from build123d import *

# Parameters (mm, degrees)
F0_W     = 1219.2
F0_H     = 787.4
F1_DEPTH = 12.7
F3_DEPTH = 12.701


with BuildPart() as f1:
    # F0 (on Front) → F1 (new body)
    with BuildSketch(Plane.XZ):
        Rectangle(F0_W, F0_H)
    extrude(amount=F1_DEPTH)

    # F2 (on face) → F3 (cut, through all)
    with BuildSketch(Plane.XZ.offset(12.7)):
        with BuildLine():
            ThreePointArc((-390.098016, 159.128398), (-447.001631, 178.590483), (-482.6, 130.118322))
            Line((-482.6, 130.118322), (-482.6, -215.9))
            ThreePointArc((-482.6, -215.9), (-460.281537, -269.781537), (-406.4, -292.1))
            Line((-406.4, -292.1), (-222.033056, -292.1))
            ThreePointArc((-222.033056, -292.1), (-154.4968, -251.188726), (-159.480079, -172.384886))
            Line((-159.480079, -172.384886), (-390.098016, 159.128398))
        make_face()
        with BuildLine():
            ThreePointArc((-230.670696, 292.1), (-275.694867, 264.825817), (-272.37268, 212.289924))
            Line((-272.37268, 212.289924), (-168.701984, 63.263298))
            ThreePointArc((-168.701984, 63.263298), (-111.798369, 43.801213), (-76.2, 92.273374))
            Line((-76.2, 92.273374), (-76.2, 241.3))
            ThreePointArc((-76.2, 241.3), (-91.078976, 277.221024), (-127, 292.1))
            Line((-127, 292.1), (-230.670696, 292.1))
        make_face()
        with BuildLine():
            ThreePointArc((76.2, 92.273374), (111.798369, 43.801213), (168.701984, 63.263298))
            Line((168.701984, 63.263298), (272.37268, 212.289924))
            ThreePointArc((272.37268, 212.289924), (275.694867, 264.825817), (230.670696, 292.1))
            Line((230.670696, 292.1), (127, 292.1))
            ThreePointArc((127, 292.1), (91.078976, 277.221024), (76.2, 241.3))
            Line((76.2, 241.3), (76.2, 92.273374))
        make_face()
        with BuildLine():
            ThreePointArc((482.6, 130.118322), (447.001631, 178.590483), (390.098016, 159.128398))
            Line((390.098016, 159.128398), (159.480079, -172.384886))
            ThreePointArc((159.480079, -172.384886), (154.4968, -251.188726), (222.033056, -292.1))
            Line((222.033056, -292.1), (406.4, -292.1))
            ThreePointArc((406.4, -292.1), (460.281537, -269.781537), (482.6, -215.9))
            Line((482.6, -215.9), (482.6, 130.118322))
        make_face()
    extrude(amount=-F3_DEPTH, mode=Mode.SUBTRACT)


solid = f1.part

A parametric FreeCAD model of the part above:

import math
import FreeCAD as App
import Part
import Sketcher
Q = App.Units.Quantity

doc = App.newDocument("Part")
body = doc.addObject("PartDesign::Body", "Body")

sketch1 = body.newObject("Sketcher::SketchObject", "Sketch")
sketch1.AttachmentSupport = (doc.getObject("XZ_Plane"), [""])
sketch1.MapMode = "FlatFace"
sketch1.addGeometry(Part.LineSegment(App.Vector(-609.6, 393.7, 0), App.Vector(-609.6, -393.7, 0)), False)
sketch1.addGeometry(Part.LineSegment(App.Vector(-609.6, -393.7, 0), App.Vector(609.6, -393.7, 0)), False)
sketch1.addGeometry(Part.LineSegment(App.Vector(609.6, -393.7, 0), App.Vector(609.6, 393.7, 0)), False)
sketch1.addGeometry(Part.LineSegment(App.Vector(609.6, 393.7, 0), App.Vector(-609.6, 393.7, 0)), False)
sketch1.addConstraint(Sketcher.Constraint("Coincident", 0, 2, 1, 1))
sketch1.addConstraint(Sketcher.Constraint("Coincident", 1, 2, 2, 1))
sketch1.addConstraint(Sketcher.Constraint("Coincident", 2, 2, 3, 1))
sketch1.addConstraint(Sketcher.Constraint("Coincident", 3, 2, 0, 1))
sketch1.addConstraint(Sketcher.Constraint("Vertical", 0))
sketch1.addConstraint(Sketcher.Constraint("Horizontal", 1))
sketch1.addConstraint(Sketcher.Constraint("Vertical", 2))
sketch1.addConstraint(Sketcher.Constraint("Horizontal", 3))
sketch1.addConstraint(Sketcher.Constraint("Symmetric", 0, 2, 2, 2, -1, 1))
sketch1.addConstraint(Sketcher.Constraint("DistanceX", 1, 1, 1, 2, Q("48 in")))
sketch1.addConstraint(Sketcher.Constraint("DistanceY", 0, 2, 0, 1, Q("31 in")))
pad1 = body.newObject("PartDesign::Pad", "Pad")
pad1.Profile = sketch1
pad1.Length = Q("0.5 in")

sketch2 = body.newObject("Sketcher::SketchObject", "Sketch001")
sketch2.AttachmentSupport = (doc.getObject("XZ_Plane"), [""])
sketch2.MapMode = "FlatFace"
sketch2.AttachmentOffset = App.Placement(App.Vector(0, 0, 0.5 * 25.4), App.Rotation())
sketch2.addGeometry(Part.ArcOfCircle(Part.Circle(App.Vector(-431.8, 130.118322, 0), App.Vector(0, 0, 1), 50.8), math.radians(34.824489), math.radians(180)), False)
sketch2.addGeometry(Part.LineSegment(App.Vector(-482.6, 130.118322, 0), App.Vector(-482.6, -215.9, 0)), False)
sketch2.addGeometry(Part.ArcOfCircle(Part.Circle(App.Vector(-406.400001, -215.900001, 0), App.Vector(0, 0, 1), 76.199999), math.radians(179.999999), math.radians(270.000001)), False)
sketch2.addGeometry(Part.LineSegment(App.Vector(-406.4, -292.1, 0), App.Vector(-222.033056, -292.1, 0)), False)
sketch2.addGeometry(Part.ArcOfCircle(Part.Circle(App.Vector(-222.033056, -215.9, 0), App.Vector(0, 0, 1), 76.2), math.radians(-90), math.radians(34.824489)), False)
sketch2.addGeometry(Part.LineSegment(App.Vector(-159.480079, -172.384886, 0), App.Vector(-390.098016, 159.128398, 0)), False)
sketch2.addGeometry(Part.ArcOfCircle(Part.Circle(App.Vector(-230.670697, 241.300001, 0), App.Vector(0, 0, 1), 50.799999), math.radians(89.999999), math.radians(214.82449)), False)
sketch2.addGeometry(Part.LineSegment(App.Vector(-272.37268, 212.289924, 0), App.Vector(-168.701984, 63.263298, 0)), False)
sketch2.addGeometry(Part.ArcOfCircle(Part.Circle(App.Vector(-127, 92.273374, 0), App.Vector(0, 0, 1), 50.8), math.radians(-145.175511), math.radians(0)), False)
sketch2.addGeometry(Part.LineSegment(App.Vector(-76.2, 92.273374, 0), App.Vector(-76.2, 241.3, 0)), False)
sketch2.addGeometry(Part.ArcOfCircle(Part.Circle(App.Vector(-127.000002, 241.299998, 0), App.Vector(0, 0, 1), 50.800002), math.radians(0.000002), math.radians(89.999998)), False)
sketch2.addGeometry(Part.LineSegment(App.Vector(-127, 292.1, 0), App.Vector(-230.670696, 292.1, 0)), False)
sketch2.addGeometry(Part.ArcOfCircle(Part.Circle(App.Vector(127, 92.273374, 0), App.Vector(0, 0, 1), 50.8), math.radians(-180), math.radians(-34.824489)), False)
sketch2.addGeometry(Part.LineSegment(App.Vector(168.701984, 63.263298, 0), App.Vector(272.37268, 212.289924, 0)), False)
sketch2.addGeometry(Part.ArcOfCircle(Part.Circle(App.Vector(230.670697, 241.300001, 0), App.Vector(0, 0, 1), 50.799999), math.radians(-34.82449), math.radians(90.000001)), False)
sketch2.addGeometry(Part.LineSegment(App.Vector(230.670696, 292.1, 0), App.Vector(127, 292.1, 0)), False)
sketch2.addGeometry(Part.ArcOfCircle(Part.Circle(App.Vector(127.000002, 241.299998, 0), App.Vector(0, 0, 1), 50.800002), math.radians(90.000002), math.radians(179.999998)), False)
sketch2.addGeometry(Part.LineSegment(App.Vector(76.2, 241.3, 0), App.Vector(76.2, 92.273374, 0)), False)
sketch2.addGeometry(Part.ArcOfCircle(Part.Circle(App.Vector(431.8, 130.118322, 0), App.Vector(0, 0, 1), 50.8), math.radians(0), math.radians(145.175511)), False)
sketch2.addGeometry(Part.LineSegment(App.Vector(390.098016, 159.128398, 0), App.Vector(159.480079, -172.384886, 0)), False)
sketch2.addGeometry(Part.ArcOfCircle(Part.Circle(App.Vector(222.033056, -215.9, 0), App.Vector(0, 0, 1), 76.2), math.radians(145.175511), math.radians(270)), False)
sketch2.addGeometry(Part.LineSegment(App.Vector(222.033056, -292.1, 0), App.Vector(406.4, -292.1, 0)), False)
sketch2.addGeometry(Part.ArcOfCircle(Part.Circle(App.Vector(406.400001, -215.900001, 0), App.Vector(0, 0, 1), 76.199999), math.radians(-90.000001), math.radians(0.000001)), False)
sketch2.addGeometry(Part.LineSegment(App.Vector(482.6, -215.9, 0), App.Vector(482.6, 130.118322, 0)), False)
sketch2.addConstraint(Sketcher.Constraint("Tangent", 0, 2, 1, 1))
sketch2.addConstraint(Sketcher.Constraint("Tangent", 1, 2, 2, 1))
sketch2.addConstraint(Sketcher.Constraint("Tangent", 2, 2, 3, 1))
sketch2.addConstraint(Sketcher.Constraint("Tangent", 3, 2, 4, 1))
sketch2.addConstraint(Sketcher.Constraint("Tangent", 4, 2, 5, 1))
sketch2.addConstraint(Sketcher.Constraint("Tangent", 5, 2, 0, 1))
sketch2.addConstraint(Sketcher.Constraint("Tangent", 6, 2, 7, 1))
sketch2.addConstraint(Sketcher.Constraint("Tangent", 7, 2, 8, 1))
sketch2.addConstraint(Sketcher.Constraint("Tangent", 8, 2, 9, 1))
sketch2.addConstraint(Sketcher.Constraint("Tangent", 9, 2, 10, 1))
sketch2.addConstraint(Sketcher.Constraint("Tangent", 10, 2, 11, 1))
sketch2.addConstraint(Sketcher.Constraint("Tangent", 11, 2, 6, 1))
sketch2.addConstraint(Sketcher.Constraint("Tangent", 12, 2, 13, 1))
sketch2.addConstraint(Sketcher.Constraint("Tangent", 13, 2, 14, 1))
sketch2.addConstraint(Sketcher.Constraint("Tangent", 14, 2, 15, 1))
sketch2.addConstraint(Sketcher.Constraint("Tangent", 15, 2, 16, 1))
sketch2.addConstraint(Sketcher.Constraint("Tangent", 16, 2, 17, 1))
sketch2.addConstraint(Sketcher.Constraint("Tangent", 17, 2, 12, 1))
sketch2.addConstraint(Sketcher.Constraint("Tangent", 18, 2, 19, 1))
sketch2.addConstraint(Sketcher.Constraint("Tangent", 19, 2, 20, 1))
sketch2.addConstraint(Sketcher.Constraint("Tangent", 20, 2, 21, 1))
sketch2.addConstraint(Sketcher.Constraint("Tangent", 21, 2, 22, 1))
sketch2.addConstraint(Sketcher.Constraint("Tangent", 22, 2, 23, 1))
sketch2.addConstraint(Sketcher.Constraint("Tangent", 23, 2, 18, 1))
sketch2.addConstraint(Sketcher.Constraint("Vertical", 1))
sketch2.addConstraint(Sketcher.Constraint("Horizontal", 3))
sketch2.addConstraint(Sketcher.Constraint("Vertical", 9))
sketch2.addConstraint(Sketcher.Constraint("Horizontal", 11))
sketch2.addConstraint(Sketcher.Constraint("Horizontal", 15))
sketch2.addConstraint(Sketcher.Constraint("Vertical", 17))
sketch2.addConstraint(Sketcher.Constraint("Horizontal", 21))
sketch2.addConstraint(Sketcher.Constraint("Vertical", 23))
sketch2.addConstraint(Sketcher.Constraint("Equal", 2, 4))
sketch2.addConstraint(Sketcher.Constraint("Equal", 0, 6))
sketch2.addConstraint(Sketcher.Constraint("Equal", 6, 8))
sketch2.addConstraint(Sketcher.Constraint("Equal", 8, 10))
sketch2.addConstraint(Sketcher.Constraint("Equal", 10, 12))
sketch2.addConstraint(Sketcher.Constraint("Equal", 12, 14))
sketch2.addConstraint(Sketcher.Constraint("Equal", 12, 16))
sketch2.addConstraint(Sketcher.Constraint("Equal", 16, 18))
sketch2.addConstraint(Sketcher.Constraint("Equal", 4, 20))
sketch2.addConstraint(Sketcher.Constraint("Equal", 20, 22))
sketch2.addConstraint(Sketcher.Constraint("Symmetric", 8, 3, 12, 3, -2))
sketch2.addConstraint(Sketcher.Constraint("Symmetric", 6, 3, 14, 3, -2))
sketch2.addConstraint(Sketcher.Constraint("Symmetric", 0, 3, 18, 3, -2))
sketch2.addConstraint(Sketcher.Constraint("Symmetric", 4, 3, 20, 3, -2))
sketch2.addConstraint(Sketcher.Constraint("Parallel", 5, 7))
sketch2.addConstraint(Sketcher.Constraint("Radius", 0, Q("2 in")))
sketch2.addConstraint(Sketcher.Constraint("Radius", 2, Q("3 in")))
sketch2.addConstraint(Sketcher.Constraint("DistanceX", 0, 3, -1, 1, Q("17 in")))
sketch2.addConstraint(Sketcher.Constraint("DistanceX", 8, 3, -1, 1, Q("5 in")))
sketch2.addConstraint(Sketcher.Constraint("DistanceY", 4, 3, 6, 3, Q("18 in")))
sketch2.addConstraint(Sketcher.Constraint("DistanceY", 2, 3, -1, 1, Q("8.5 in")))
sketch2.addConstraint(Sketcher.Constraint("DistanceY", 1, 2, 1, 1, 346.018322))
sketch2.addConstraint(Sketcher.Constraint("DistanceY", -1, 1, 5, 2, 159.128398))
sketch2.addConstraint(Sketcher.Constraint("DistanceY", -1, 1, 12, 2, 63.263298))
pocket1 = body.newObject("PartDesign::Pocket", "Pocket")
pocket1.Profile = sketch2
pocket1.Type = "ThroughAll"

doc.recompute()
